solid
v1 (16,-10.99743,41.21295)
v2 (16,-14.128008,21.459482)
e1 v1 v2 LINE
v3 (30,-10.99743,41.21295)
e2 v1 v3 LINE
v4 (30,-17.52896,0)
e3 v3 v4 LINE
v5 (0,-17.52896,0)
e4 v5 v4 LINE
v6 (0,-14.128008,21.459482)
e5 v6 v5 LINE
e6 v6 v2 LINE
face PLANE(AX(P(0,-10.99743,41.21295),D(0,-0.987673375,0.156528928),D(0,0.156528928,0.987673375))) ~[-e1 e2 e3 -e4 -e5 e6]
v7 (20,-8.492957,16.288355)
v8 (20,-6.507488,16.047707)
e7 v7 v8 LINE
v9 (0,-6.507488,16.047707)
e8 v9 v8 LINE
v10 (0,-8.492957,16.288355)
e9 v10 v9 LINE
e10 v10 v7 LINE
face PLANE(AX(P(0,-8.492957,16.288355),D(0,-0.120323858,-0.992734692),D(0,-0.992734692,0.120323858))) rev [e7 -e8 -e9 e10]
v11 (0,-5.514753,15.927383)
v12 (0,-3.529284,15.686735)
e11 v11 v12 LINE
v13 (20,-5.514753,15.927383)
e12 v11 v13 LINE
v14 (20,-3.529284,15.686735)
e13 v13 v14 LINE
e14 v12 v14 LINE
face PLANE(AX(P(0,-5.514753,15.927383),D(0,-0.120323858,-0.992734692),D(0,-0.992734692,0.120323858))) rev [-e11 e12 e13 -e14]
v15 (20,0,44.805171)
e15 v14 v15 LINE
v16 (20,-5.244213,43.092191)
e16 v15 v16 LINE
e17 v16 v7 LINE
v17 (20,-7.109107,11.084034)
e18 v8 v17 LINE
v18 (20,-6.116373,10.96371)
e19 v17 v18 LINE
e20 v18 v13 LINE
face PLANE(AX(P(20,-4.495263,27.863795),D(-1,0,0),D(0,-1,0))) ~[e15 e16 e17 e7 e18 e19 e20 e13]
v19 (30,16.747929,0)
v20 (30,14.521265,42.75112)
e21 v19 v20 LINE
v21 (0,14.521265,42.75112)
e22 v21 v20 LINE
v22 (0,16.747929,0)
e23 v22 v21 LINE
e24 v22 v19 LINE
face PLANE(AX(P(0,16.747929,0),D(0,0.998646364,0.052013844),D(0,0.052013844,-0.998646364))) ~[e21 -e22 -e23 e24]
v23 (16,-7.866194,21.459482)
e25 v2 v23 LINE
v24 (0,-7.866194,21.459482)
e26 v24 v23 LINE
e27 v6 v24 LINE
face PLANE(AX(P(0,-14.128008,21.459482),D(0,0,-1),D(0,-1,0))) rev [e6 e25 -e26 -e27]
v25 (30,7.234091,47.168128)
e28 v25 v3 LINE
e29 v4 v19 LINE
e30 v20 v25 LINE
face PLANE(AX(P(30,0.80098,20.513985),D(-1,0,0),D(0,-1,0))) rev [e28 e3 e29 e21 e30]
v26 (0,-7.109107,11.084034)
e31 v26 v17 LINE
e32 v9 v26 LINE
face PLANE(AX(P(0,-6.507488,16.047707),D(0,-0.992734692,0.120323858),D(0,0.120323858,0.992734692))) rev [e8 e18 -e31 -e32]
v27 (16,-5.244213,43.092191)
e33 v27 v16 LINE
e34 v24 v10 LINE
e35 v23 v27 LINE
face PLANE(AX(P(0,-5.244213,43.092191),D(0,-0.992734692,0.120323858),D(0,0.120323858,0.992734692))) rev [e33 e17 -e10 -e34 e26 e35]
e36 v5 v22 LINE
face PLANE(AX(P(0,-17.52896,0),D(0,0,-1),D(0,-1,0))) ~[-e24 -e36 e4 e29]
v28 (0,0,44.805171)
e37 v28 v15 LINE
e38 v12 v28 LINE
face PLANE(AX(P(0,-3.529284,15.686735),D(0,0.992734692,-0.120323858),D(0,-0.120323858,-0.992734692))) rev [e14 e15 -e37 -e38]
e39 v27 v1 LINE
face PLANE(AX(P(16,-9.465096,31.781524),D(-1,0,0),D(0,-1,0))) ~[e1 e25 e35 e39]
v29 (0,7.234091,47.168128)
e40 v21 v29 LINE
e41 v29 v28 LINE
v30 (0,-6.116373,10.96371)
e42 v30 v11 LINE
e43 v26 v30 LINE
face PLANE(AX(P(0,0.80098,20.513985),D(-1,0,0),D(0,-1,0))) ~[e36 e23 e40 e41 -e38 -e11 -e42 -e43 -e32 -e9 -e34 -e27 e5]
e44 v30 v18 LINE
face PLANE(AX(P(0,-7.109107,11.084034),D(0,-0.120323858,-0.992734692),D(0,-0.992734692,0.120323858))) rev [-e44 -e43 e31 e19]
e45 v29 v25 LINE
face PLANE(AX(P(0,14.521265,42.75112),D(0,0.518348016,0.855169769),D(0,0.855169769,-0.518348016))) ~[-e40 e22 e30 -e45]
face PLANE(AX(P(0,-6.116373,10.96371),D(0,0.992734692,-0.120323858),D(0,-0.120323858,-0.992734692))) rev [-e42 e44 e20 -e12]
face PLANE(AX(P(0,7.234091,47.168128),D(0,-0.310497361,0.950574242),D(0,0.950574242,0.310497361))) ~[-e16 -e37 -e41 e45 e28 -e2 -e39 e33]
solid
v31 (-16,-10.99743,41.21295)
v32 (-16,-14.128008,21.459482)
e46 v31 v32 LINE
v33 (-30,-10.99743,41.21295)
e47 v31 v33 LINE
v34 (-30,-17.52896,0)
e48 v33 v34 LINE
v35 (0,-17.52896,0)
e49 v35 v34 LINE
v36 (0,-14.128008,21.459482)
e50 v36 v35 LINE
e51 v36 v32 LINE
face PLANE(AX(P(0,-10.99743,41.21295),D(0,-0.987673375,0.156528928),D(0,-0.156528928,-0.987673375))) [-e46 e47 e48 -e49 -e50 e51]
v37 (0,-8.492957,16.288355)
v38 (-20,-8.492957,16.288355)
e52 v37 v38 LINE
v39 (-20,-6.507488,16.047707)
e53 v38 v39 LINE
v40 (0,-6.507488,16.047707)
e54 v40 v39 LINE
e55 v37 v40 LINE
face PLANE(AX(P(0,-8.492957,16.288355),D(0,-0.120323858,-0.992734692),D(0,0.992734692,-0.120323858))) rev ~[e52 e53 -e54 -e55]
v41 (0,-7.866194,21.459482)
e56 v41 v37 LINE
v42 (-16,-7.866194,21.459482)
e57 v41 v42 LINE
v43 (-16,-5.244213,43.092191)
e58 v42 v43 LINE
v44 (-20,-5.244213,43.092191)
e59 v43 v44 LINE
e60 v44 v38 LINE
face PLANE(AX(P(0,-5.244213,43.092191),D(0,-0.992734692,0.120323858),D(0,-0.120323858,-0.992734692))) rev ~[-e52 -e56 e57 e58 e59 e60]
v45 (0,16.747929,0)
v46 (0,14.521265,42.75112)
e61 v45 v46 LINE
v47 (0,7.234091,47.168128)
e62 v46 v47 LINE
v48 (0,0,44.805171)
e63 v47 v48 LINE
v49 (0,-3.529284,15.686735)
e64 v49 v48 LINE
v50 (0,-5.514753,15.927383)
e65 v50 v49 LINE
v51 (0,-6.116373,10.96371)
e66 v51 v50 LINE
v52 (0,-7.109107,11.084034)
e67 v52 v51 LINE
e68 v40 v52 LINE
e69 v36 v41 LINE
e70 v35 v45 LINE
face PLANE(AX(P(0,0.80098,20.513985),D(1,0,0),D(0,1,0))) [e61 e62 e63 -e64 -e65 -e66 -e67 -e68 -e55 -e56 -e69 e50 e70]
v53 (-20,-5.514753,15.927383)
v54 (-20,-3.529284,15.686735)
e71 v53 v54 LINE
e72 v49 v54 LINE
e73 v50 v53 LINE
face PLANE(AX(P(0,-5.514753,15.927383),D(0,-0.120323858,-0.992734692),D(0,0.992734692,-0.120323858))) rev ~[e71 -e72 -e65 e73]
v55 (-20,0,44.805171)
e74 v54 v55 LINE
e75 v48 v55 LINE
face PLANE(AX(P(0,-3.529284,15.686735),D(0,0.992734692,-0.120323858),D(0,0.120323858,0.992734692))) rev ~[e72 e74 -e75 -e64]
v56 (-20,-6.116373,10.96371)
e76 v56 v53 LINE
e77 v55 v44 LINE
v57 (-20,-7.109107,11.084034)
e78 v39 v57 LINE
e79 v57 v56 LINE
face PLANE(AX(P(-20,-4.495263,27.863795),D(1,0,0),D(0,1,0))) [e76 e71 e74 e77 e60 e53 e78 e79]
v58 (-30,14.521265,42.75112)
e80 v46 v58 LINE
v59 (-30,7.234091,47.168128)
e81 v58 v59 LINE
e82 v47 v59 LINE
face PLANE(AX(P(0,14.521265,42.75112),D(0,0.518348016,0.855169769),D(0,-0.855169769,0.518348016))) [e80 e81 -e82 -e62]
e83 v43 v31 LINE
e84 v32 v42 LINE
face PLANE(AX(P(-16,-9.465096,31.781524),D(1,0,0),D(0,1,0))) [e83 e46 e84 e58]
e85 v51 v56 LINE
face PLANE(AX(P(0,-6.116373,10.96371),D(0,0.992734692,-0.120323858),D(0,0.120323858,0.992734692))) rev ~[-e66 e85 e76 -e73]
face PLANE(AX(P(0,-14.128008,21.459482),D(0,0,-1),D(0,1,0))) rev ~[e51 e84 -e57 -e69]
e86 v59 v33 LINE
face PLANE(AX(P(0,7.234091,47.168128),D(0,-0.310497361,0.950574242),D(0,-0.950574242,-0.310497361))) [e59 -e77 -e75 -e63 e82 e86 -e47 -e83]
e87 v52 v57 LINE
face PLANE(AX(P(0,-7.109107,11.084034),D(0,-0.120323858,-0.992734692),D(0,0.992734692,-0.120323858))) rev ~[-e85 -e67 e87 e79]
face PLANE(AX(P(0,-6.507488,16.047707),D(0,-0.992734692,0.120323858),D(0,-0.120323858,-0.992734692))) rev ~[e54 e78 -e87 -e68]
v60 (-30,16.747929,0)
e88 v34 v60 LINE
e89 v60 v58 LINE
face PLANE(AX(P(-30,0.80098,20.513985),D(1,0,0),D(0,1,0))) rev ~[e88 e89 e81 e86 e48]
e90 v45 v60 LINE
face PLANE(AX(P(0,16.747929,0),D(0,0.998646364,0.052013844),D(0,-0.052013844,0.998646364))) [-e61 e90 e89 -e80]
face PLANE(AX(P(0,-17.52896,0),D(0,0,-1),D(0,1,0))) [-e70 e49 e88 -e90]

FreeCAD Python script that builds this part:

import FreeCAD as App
import Part
import Sketcher
Q = App.Units.Quantity

doc = App.newDocument("Part")
body = doc.addObject("PartDesign::Body", "Body")

# Sketch on YZ plane
sketch1 = body.newObject("Sketcher::SketchObject", "Sketch")
sketch1.AttachmentSupport = (doc.getObject("YZ_Plane"), [""])
sketch1.MapMode = "FlatFace"
sketch1.addGeometry([
    Part.LineSegment(App.Vector(-17.52896, 0, 0), App.Vector(16.747929, 0, 0)),  # 0
    Part.LineSegment(App.Vector(16.747929, 0, 0), App.Vector(14.521265, 42.75112, 0)),  # 1
    Part.LineSegment(App.Vector(14.521265, 42.75112, 0), App.Vector(7.234091, 47.168128, 0)),  # 2
    Part.LineSegment(App.Vector(7.234091, 47.168128, 0), App.Vector(-10.99743, 41.21295, 0)),  # 3
    Part.LineSegment(App.Vector(-10.99743, 41.21295, 0), App.Vector(-17.52896, 0, 0)),  # 4
], False)
sketch1.addConstraint([
    Sketcher.Constraint("Coincident", 0, 2, 1, 1),
    Sketcher.Constraint("Coincident", 1, 2, 2, 1),
    Sketcher.Constraint("Coincident", 2, 2, 3, 1),
    Sketcher.Constraint("Coincident", 3, 2, 4, 1),
    Sketcher.Constraint("Coincident", 4, 2, 0, 1),
    Sketcher.Constraint("Horizontal", 0),
    Sketcher.Constraint("PointOnObject", 0, 2, -1),
    Sketcher.Constraint("DistanceX", 0, 1, 0, 2, Q("34.27689 mm")),
    Sketcher.Constraint("Distance", 2, Q("8.521319 mm")),
    Sketcher.Constraint("Distance", 3, Q("19.179481 mm")),
    Sketcher.Constraint("DistanceX", -1, 1, 0, 2, Q("16.747929 mm")),
    Sketcher.Constraint("DistanceY", -1, 1, 1, 2, Q("42.75112 mm")),
    Sketcher.Constraint("DistanceX", -1, 1, 2, 2, Q("7.234091 mm")),
    Sketcher.Constraint("DistanceY", -1, 1, 2, 2, Q("47.168128 mm")),
    Sketcher.Constraint("DistanceX", 3, 2, -1, 1, Q("10.99743 mm")),
])
pad1 = body.newObject("PartDesign::Pad", "Pad")
pad1.Profile = sketch1
pad1.Length = 30
pad1.Reversed = True

# Sketch on YZ plane
sketch2 = body.newObject("Sketcher::SketchObject", "Sketch001")
sketch2.AttachmentSupport = (doc.getObject("YZ_Plane"), [""])
sketch2.MapMode = "FlatFace"
sketch2.addGeometry([
    Part.LineSegment(App.Vector(0, 44.805171, 0), App.Vector(-5.244213, 43.092191, 0)),  # 0
    Part.LineSegment(App.Vector(-5.244213, 43.092191, 0), App.Vector(-8.492957, 16.288355, 0)),  # 1
    Part.LineSegment(App.Vector(-8.492957, 16.288355, 0), App.Vector(-6.507488, 16.047707, 0)),  # 2
    Part.LineSegment(App.Vector(-6.507488, 16.047707, 0), App.Vector(-7.109107, 11.084034, 0)),  # 3
    Part.LineSegment(App.Vector(-7.109107, 11.084034, 0), App.Vector(-6.116373, 10.96371, 0)),  # 4
    Part.LineSegment(App.Vector(-6.116373, 10.96371, 0), App.Vector(-5.514753, 15.927383, 0)),  # 5
    Part.LineSegment(App.Vector(-5.514753, 15.927383, 0), App.Vector(-3.529284, 15.686735, 0)),  # 6
    Part.LineSegment(App.Vector(-3.529284, 15.686735, 0), App.Vector(0, 44.805171, 0)),  # 7
], False)
sketch2.addConstraint([
    Sketcher.Constraint("Coincident", 0, 2, 1, 1),
    Sketcher.Constraint("Coincident", 1, 2, 2, 1),
    Sketcher.Constraint("Coincident", 2, 2, 3, 1),
    Sketcher.Constraint("Coincident", 3, 2, 4, 1),
    Sketcher.Constraint("Coincident", 4, 2, 5, 1),
    Sketcher.Constraint("Coincident", 5, 2, 6, 1),
    Sketcher.Constraint("Coincident", 6, 2, 7, 1),
    Sketcher.Constraint("Coincident", 7, 2, 0, 1),
    Sketcher.Constraint("PointOnObject", 7, 2, -2),
    Sketcher.Constraint("Perpendicular", 1, 2),
    Sketcher.Constraint("Perpendicular", 2, 3),
    Sketcher.Constraint("Perpendicular", 3, 4),
    Sketcher.Constraint("Perpendicular", 4, 5),
    Sketcher.Constraint("Perpendicular", 5, 6),
    Sketcher.Constraint("Perpendicular", 6, 7),
    Sketcher.Constraint("Equal", 3, 5),
    Sketcher.Constraint("Equal", 2, 6),
    Sketcher.Constraint("Distance", 1, Q("27 mm")),
    Sketcher.Constraint("Distance", 2, Q("2 mm")),
    Sketcher.Constraint("Distance", 3, Q("5 mm")),
    Sketcher.Constraint("Distance", 4, Q("1 mm")),
    Sketcher.Constraint("DistanceY", 3, 2, 6, 2, Q("4.602702 mm")),
    Sketcher.Constraint("Distance", 0, Q("5.51689 mm")),
    Sketcher.Constraint("DistanceY", -1, 1, 0, 2, Q("43.092191 mm")),
])
pocket1 = body.newObject("PartDesign::Pocket", "Pocket")
pocket1.Profile = sketch2
pocket1.Length = 20

# Sketch on YZ plane
sketch3 = body.newObject("Sketcher::SketchObject", "Sketch002")
sketch3.AttachmentSupport = (doc.getObject("YZ_Plane"), [""])
sketch3.MapMode = "FlatFace"
sketch3.addGeometry([
    Part.LineSegment(App.Vector(-10.99743, 41.21295, 0), App.Vector(-14.128008, 21.459482, 0)),
    Part.LineSegment(App.Vector(-14.128008, 21.459482, 0), App.Vector(-7.866194, 21.459482, 0)),
    Part.LineSegment(App.Vector(-7.866194, 21.459482, 0), App.Vector(-5.244213, 43.092191, 0)),
    Part.LineSegment(App.Vector(-5.244213, 43.092191, 0), App.Vector(-10.99743, 41.21295, 0)),
], False)
sketch3.addConstraint([
    Sketcher.Constraint("Coincident", 0, 2, 1, 1),
    Sketcher.Constraint("Coincident", 1, 2, 2, 1),
    Sketcher.Constraint("Coincident", 2, 2, 3, 1),
    Sketcher.Constraint("Coincident", 3, 2, 0, 1),
    Sketcher.Constraint("Horizontal", 1),
    Sketcher.Constraint("Distance", 0, Q("20 mm")),
    Sketcher.Constraint("Distance", 3, Q("6.052359 mm")),
    Sketcher.Constraint("DistanceX", 1, 1, 1, 2, Q("6.261815 mm")),
    Sketcher.Constraint("DistanceX", 0, 2, -1, 1, Q("14.128008 mm")),
    Sketcher.Constraint("DistanceY", -1, 1, 2, 2, Q("43.092191 mm")),
    Sketcher.Constraint("DistanceX", 3, 2, -1, 1, Q("10.99743 mm")),
    Sketcher.Constraint("DistanceY", -1, 1, 3, 2, Q("41.21295 mm")),
])
pocket2 = body.newObject("PartDesign::Pocket", "Pocket001")
pocket2.Profile = sketch3
pocket2.Length = 16
body2 = doc.addObject("PartDesign::Body", "Body001")
doc.recompute()

mirroring = doc.addObject("Part::Mirroring", "Mirroring")
mirroring.Source = body
mirroring.Base = App.Vector(0, 0, 0)
mirroring.Normal = App.Vector(1, 0, 0)
body2.BaseFeature = mirroring
doc.recompute()
mirroring.Visibility = False

doc.recompute()
